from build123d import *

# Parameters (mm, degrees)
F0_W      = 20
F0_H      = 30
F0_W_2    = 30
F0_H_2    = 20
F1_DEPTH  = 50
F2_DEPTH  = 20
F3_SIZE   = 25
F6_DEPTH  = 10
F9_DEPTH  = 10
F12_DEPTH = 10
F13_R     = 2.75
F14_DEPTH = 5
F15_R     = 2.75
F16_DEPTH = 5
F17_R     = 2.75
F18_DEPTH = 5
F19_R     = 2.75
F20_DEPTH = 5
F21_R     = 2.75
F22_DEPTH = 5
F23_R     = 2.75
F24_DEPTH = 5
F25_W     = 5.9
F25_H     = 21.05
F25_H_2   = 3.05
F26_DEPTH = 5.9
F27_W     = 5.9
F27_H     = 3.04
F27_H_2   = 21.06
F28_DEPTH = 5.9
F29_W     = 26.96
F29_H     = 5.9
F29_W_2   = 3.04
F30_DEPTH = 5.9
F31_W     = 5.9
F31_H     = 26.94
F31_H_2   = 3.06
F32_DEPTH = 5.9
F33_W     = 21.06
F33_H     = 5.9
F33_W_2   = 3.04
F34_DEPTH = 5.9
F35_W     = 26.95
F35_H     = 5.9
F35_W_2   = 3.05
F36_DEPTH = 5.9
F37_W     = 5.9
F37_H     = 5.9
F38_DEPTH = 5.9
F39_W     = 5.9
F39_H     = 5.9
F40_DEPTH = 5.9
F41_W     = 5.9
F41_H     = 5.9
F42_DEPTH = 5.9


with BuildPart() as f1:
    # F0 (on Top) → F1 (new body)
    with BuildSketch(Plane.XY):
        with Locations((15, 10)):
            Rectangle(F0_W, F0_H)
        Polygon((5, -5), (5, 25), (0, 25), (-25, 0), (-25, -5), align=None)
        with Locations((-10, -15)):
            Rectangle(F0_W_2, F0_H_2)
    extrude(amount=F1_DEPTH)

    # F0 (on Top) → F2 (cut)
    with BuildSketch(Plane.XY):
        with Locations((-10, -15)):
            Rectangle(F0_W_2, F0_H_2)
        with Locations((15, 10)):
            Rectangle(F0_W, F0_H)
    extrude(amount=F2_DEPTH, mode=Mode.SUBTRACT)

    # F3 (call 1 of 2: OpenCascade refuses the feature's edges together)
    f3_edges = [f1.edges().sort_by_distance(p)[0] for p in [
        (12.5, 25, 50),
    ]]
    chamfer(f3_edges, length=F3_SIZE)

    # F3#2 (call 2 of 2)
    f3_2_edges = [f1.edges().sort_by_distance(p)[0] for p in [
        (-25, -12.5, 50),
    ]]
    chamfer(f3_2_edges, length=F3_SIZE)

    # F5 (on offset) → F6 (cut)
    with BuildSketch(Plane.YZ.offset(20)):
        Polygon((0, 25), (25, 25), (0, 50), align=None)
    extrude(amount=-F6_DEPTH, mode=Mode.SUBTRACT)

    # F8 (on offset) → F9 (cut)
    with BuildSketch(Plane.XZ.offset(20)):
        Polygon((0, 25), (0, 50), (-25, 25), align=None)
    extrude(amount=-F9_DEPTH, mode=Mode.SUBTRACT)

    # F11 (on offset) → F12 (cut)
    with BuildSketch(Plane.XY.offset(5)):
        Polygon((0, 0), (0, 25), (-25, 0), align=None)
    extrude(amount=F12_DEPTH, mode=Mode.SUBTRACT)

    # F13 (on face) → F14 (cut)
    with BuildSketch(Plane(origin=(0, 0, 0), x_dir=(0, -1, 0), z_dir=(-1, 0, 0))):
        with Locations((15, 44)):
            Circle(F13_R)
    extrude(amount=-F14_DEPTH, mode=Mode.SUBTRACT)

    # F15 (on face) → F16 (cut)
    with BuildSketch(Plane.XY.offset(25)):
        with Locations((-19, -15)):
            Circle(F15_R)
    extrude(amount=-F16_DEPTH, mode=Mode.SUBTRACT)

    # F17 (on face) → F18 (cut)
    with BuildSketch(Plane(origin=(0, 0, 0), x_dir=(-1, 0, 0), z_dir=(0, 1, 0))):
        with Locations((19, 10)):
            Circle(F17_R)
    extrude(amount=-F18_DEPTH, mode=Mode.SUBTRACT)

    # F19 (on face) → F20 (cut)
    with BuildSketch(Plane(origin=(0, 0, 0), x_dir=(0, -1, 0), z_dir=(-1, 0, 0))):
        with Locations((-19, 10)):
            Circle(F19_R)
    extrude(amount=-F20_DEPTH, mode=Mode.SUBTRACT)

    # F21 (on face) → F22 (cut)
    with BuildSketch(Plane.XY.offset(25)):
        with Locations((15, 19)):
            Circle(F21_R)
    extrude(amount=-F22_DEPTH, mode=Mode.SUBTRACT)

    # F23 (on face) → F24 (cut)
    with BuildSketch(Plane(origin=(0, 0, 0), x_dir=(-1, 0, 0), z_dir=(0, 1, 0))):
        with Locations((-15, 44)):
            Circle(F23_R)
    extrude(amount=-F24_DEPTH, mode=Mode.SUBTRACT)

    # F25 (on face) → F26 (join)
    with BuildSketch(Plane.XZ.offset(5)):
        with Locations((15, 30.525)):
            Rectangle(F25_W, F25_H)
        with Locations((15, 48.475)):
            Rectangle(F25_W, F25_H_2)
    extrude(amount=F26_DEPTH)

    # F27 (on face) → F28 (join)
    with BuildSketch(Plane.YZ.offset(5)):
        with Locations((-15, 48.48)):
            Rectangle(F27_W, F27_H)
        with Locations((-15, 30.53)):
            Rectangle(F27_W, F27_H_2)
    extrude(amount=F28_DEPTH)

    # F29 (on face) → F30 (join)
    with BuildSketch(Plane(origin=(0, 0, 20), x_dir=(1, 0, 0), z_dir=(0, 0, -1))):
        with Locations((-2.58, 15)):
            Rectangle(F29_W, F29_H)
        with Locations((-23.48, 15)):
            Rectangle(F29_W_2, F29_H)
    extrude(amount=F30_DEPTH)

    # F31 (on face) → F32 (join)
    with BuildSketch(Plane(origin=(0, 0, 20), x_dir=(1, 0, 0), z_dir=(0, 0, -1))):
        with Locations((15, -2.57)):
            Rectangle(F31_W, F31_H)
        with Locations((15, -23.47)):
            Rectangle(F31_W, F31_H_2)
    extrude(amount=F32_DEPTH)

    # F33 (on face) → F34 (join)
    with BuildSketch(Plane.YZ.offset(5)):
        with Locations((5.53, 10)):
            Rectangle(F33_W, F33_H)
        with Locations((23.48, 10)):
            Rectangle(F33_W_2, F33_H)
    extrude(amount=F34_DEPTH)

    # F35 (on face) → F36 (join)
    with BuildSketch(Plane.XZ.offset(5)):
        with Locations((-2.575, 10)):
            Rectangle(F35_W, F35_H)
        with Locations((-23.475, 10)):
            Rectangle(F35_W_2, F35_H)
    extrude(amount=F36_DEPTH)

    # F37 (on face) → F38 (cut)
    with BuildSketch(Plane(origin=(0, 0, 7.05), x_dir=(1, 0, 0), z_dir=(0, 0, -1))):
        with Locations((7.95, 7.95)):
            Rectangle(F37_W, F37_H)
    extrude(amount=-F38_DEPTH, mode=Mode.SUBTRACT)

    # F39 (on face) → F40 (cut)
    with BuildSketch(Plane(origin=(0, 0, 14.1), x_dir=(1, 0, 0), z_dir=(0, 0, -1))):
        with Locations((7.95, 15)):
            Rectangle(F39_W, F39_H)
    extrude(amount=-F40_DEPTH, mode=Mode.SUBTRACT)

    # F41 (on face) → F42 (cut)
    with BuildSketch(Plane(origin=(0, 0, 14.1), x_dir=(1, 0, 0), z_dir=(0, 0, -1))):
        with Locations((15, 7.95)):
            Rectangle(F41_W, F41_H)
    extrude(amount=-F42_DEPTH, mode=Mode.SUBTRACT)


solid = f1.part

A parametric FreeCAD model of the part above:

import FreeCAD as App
import Part
import Sketcher
Q = App.Units.Quantity


def edges_at(feature, points):
    """Names of the edges that pass closest to the given points."""
    edges = feature.Shape.Edges
    near = lambda p: min(range(len(edges)), key=lambda i: edges[i].distToShape(Part.Vertex(*p))[0])
    return sorted({f"Edge{near(p) + 1}" for p in points})


def add_polygon(sketch, points):
    """Adds a closed chain of lines whose ends are joined by coincident constraints."""
    first, n = sketch.GeometryCount, len(points)
    for a, b in zip(points, points[1:] + points[:1]):
        sketch.addGeometry(Part.LineSegment(App.Vector(*a, 0), App.Vector(*b, 0)), False)
    for i in range(n):
        sketch.addConstraint(Sketcher.Constraint("Coincident", first + i, 2, first + (i + 1) % n, 1))

doc = App.newDocument("Part")
body = doc.addObject("PartDesign::Body", "Body")

sketch1 = body.newObject("Sketcher::SketchObject", "Sketch")
sketch1.AttachmentSupport = (doc.getObject("XY_Plane"), [""])
sketch1.MapMode = "FlatFace"
add_polygon(sketch1, [(25, -5), (25, 25), (0, 25), (-25, 0), (-25, -25), (5, -25), (5, -5)])
sketch1.addConstraint([
    Sketcher.Constraint("Vertical", 0),
    Sketcher.Constraint("Horizontal", 1),
    Sketcher.Constraint("Vertical", 3),
    Sketcher.Constraint("Horizontal", 4),
    Sketcher.Constraint("Vertical", 5),
    Sketcher.Constraint("Horizontal", 6),
    Sketcher.Constraint("Symmetric", 0, 2, 3, 2, -1, 1),
    Sketcher.Constraint("PointOnObject", 1, 2, -2),
    Sketcher.Constraint("PointOnObject", 2, 2, -1),
    Sketcher.Constraint("Equal", 4, 0),
    Sketcher.Constraint("Equal", 1, 3),
    Sketcher.Constraint("DistanceX", 1, 2, 1, 1, Q("25 mm")),
    Sketcher.Constraint("DistanceX", 4, 1, 4, 2, Q("30 mm")),
])
pad1 = body.newObject("PartDesign::Pad", "Pad")
pad1.Profile = sketch1
pad1.Length = 50

sketch2 = body.newObject("Sketcher::SketchObject", "Sketch001")
sketch2.AttachmentSupport = (doc.getObject("XY_Plane"), [""])
sketch2.MapMode = "FlatFace"
add_polygon(sketch2, [(-25, -5), (-25, -25), (5, -25), (5, -5)])
add_polygon(sketch2, [(5, 25), (5, -5), (25, -5), (25, 25)])
sketch2.addConstraint([
    Sketcher.Constraint("Vertical", 0),
    Sketcher.Constraint("Horizontal", 1),
    Sketcher.Constraint("Vertical", 2),
    Sketcher.Constraint("Horizontal", 3),
    Sketcher.Constraint("Vertical", 4),
    Sketcher.Constraint("Horizontal", 5),
    Sketcher.Constraint("Vertical", 6),
    Sketcher.Constraint("Horizontal", 7),
    Sketcher.Constraint("Coincident", 4, 2, 2, 2),
    Sketcher.Constraint("Symmetric", 0, 2, 6, 2, -1, 1),
    Sketcher.Constraint("Equal", 7, 0),
    Sketcher.Constraint("Equal", 3, 4),
    Sketcher.Constraint("DistanceX", 1, 1, 1, 2, Q("30 mm")),
    Sketcher.Constraint("DistanceX", 5, 1, 5, 2, Q("20 mm")),
])
pocket1 = body.newObject("PartDesign::Pocket", "Pocket")
pocket1.Profile = sketch2
pocket1.Length = 20
pocket1.Reversed = True
doc.recompute()

chamfer = body.newObject("PartDesign::Chamfer", "Chamfer")
chamfer.Base = (pocket1, edges_at(pocket1, [(12.5, 25, 50)]))
chamfer.Size = 25
doc.recompute()

chamfer2 = body.newObject("PartDesign::Chamfer", "Chamfer001")
chamfer2.Base = (chamfer, edges_at(chamfer, [(-25, -12.5, 50)]))
chamfer2.Size = 25

sketch3 = body.newObject("Sketcher::SketchObject", "Sketch002")
sketch3.AttachmentSupport = (doc.getObject("YZ_Plane"), [""])
sketch3.MapMode = "FlatFace"
sketch3.AttachmentOffset = App.Placement(App.Vector(0, 0, 20), App.Rotation())
add_polygon(sketch3, [(0, 25), (25, 25), (0, 50)])
sketch3.addConstraint([
    Sketcher.Constraint("Horizontal", 0),
    Sketcher.Constraint("Vertical", 2),
    Sketcher.Constraint("PointOnObject", 1, 2, -2),
    Sketcher.Constraint("Equal", 0, 2),
    Sketcher.Constraint("DistanceX", 0, 1, 0, 2, Q("25 mm")),
    Sketcher.Constraint("DistanceY", -1, 1, 0, 2, Q("25 mm")),
])
pocket2 = body.newObject("PartDesign::Pocket", "Pocket001")
pocket2.Profile = sketch3
pocket2.Length = 10

sketch4 = body.newObject("Sketcher::SketchObject", "Sketch003")
sketch4.AttachmentSupport = (doc.getObject("XZ_Plane"), [""])
sketch4.MapMode = "FlatFace"
sketch4.AttachmentOffset = App.Placement(App.Vector(0, 0, 20), App.Rotation())
add_polygon(sketch4, [(0, 25), (0, 50), (-25, 25)])
sketch4.addConstraint([
    Sketcher.Constraint("Vertical", 0),
    Sketcher.Constraint("Horizontal", 2),
    Sketcher.Constraint("PointOnObject", 0, 2, -2),
    Sketcher.Constraint("Equal", 2, 0),
    Sketcher.Constraint("DistanceX", 2, 1, 2, 2, Q("25 mm")),
    Sketcher.Constraint("DistanceY", -1, 1, 0, 2, Q("50 mm")),
])
pocket3 = body.newObject("PartDesign::Pocket", "Pocket002")
pocket3.Profile = sketch4
pocket3.Length = 10

sketch5 = body.newObject("Sketcher::SketchObject", "Sketch004")
sketch5.AttachmentSupport = (doc.getObject("XY_Plane"), [""])
sketch5.MapMode = "FlatFace"
sketch5.AttachmentOffset = App.Placement(App.Vector(0, 0, 5), App.Rotation())
add_polygon(sketch5, [(0, 0), (0, 25), (-25, 0)])
sketch5.addConstraint([
    Sketcher.Constraint("Vertical", 0),
    Sketcher.Constraint("Horizontal", 2),
    Sketcher.Constraint("Coincident", 2, 2, -1, 1),
    Sketcher.Constraint("Equal", 2, 0),
    Sketcher.Constraint("DistanceX", 2, 1, 2, 2, Q("25 mm")),
])
pocket4 = body.newObject("PartDesign::Pocket", "Pocket003")
pocket4.Profile = sketch5
pocket4.Length = 10
pocket4.Reversed = True

sketch6 = body.newObject("Sketcher::SketchObject", "Sketch005")
sketch6.AttachmentSupport = (doc.getObject("YZ_Plane"), [""])
sketch6.MapMode = "FlatFace"
sketch6.addGeometry(Part.Circle(App.Vector(-15, 44, 0), App.Vector(0, 0, 1), 2.8), False)
sketch6.addConstraint([
    Sketcher.Constraint("Diameter", 0, Q("5.5 mm")),
    Sketcher.Constraint("DistanceX", 0, 3, -1, 1, Q("15 mm")),
    Sketcher.Constraint("DistanceY", -1, 1, 0, 3, Q("44 mm")),
])
pocket5 = body.newObject("PartDesign::Pocket", "Pocket004")
pocket5.Profile = sketch6
pocket5.Length = 5
pocket5.Reversed = True

sketch7 = body.newObject("Sketcher::SketchObject", "Sketch006")
sketch7.AttachmentSupport = (doc.getObject("XY_Plane"), [""])
sketch7.MapMode = "FlatFace"
sketch7.AttachmentOffset = App.Placement(App.Vector(0, 0, 25), App.Rotation())
sketch7.addGeometry(Part.Circle(App.Vector(-19, -15, 0), App.Vector(0, 0, 1), 2.8), False)
sketch7.addConstraint([
    Sketcher.Constraint("Diameter", 0, Q("5.5 mm")),
    Sketcher.Constraint("DistanceX", 0, 3, -1, 1, Q("19 mm")),
    Sketcher.Constraint("DistanceY", 0, 3, -1, 1, Q("15 mm")),
])
pocket6 = body.newObject("PartDesign::Pocket", "Pocket005")
pocket6.Profile = sketch7
pocket6.Length = 5

sketch8 = body.newObject("Sketcher::SketchObject", "Sketch007")
sketch8.AttachmentSupport = (doc.getObject("XZ_Plane"), [""])
sketch8.MapMode = "FlatFace"
sketch8.addGeometry(Part.Circle(App.Vector(-19, 10, 0), App.Vector(0, 0, 1), 2.8), False)
sketch8.addConstraint([
    Sketcher.Constraint("Diameter", 0, Q("5.5 mm")),
    Sketcher.Constraint("DistanceX", 0, 3, -1, 1, Q("19 mm")),
    Sketcher.Constraint("DistanceY", -1, 1, 0, 3, Q("10 mm")),
])
pocket7 = body.newObject("PartDesign::Pocket", "Pocket006")
pocket7.Profile = sketch8
pocket7.Length = 5
pocket7.Reversed = True

sketch9 = body.newObject("Sketcher::SketchObject", "Sketch008")
sketch9.AttachmentSupport = (doc.getObject("YZ_Plane"), [""])
sketch9.MapMode = "FlatFace"
sketch9.addGeometry(Part.Circle(App.Vector(19, 10, 0), App.Vector(0, 0, 1), 2.8), False)
sketch9.addConstraint([
    Sketcher.Constraint("Diameter", 0, Q("5.5 mm")),
    Sketcher.Constraint("DistanceX", -1, 1, 0, 3, Q("19 mm")),
    Sketcher.Constraint("DistanceY", -1, 1, 0, 3, Q("10 mm")),
])
pocket8 = body.newObject("PartDesign::Pocket", "Pocket007")
pocket8.Profile = sketch9
pocket8.Length = 5
pocket8.Reversed = True

sketch10 = body.newObject("Sketcher::SketchObject", "Sketch009")
sketch10.AttachmentSupport = (doc.getObject("XY_Plane"), [""])
sketch10.MapMode = "FlatFace"
sketch10.AttachmentOffset = App.Placement(App.Vector(0, 0, 25), App.Rotation())
sketch10.addGeometry(Part.Circle(App.Vector(15, 19, 0), App.Vector(0, 0, 1), 2.8), False)
sketch10.addConstraint([
    Sketcher.Constraint("Diameter", 0, Q("5.5 mm")),
    Sketcher.Constraint("DistanceX", -1, 1, 0, 3, Q("15 mm")),
    Sketcher.Constraint("DistanceY", -1, 1, 0, 3, Q("19 mm")),
])
pocket9 = body.newObject("PartDesign::Pocket", "Pocket008")
pocket9.Profile = sketch10
pocket9.Length = 5

sketch11 = body.newObject("Sketcher::SketchObject", "Sketch010")
sketch11.AttachmentSupport = (doc.getObject("XZ_Plane"), [""])
sketch11.MapMode = "FlatFace"
sketch11.addGeometry(Part.Circle(App.Vector(15, 44, 0), App.Vector(0, 0, 1), 2.8), False)
sketch11.addConstraint([
    Sketcher.Constraint("Diameter", 0, Q("5.5 mm")),
    Sketcher.Constraint("DistanceX", -1, 1, 0, 3, Q("15 mm")),
    Sketcher.Constraint("DistanceY", -1, 1, 0, 3, Q("44 mm")),
])
pocket10 = body.newObject("PartDesign::Pocket", "Pocket009")
pocket10.Profile = sketch11
pocket10.Length = 5
pocket10.Reversed = True

sketch12 = body.newObject("Sketcher::SketchObject", "Sketch011")
sketch12.AttachmentSupport = (doc.getObject("XZ_Plane"), [""])
sketch12.MapMode = "FlatFace"
sketch12.AttachmentOffset = App.Placement(App.Vector(0, 0, 5), App.Rotation())
add_polygon(sketch12, [(12.1, 41), (12.1, 20), (17.9, 20), (17.9, 41)])
add_polygon(sketch12, [(12.1, 50), (12.1, 47), (17.9, 47), (17.9, 50)])
sketch12.addConstraint([
    Sketcher.Constraint("Vertical", 0),
    Sketcher.Constraint("Horizontal", 1),
    Sketcher.Constraint("Vertical", 2),
    Sketcher.Constraint("Horizontal", 3),
    Sketcher.Constraint("Vertical", 4),
    Sketcher.Constraint("Horizontal", 5),
    Sketcher.Constraint("Vertical", 6),
    Sketcher.Constraint("Horizontal", 7),
    Sketcher.Constraint("Vertical", 3, 2, 4, 2),
    Sketcher.Constraint("Vertical", 2, 2, 5, 2),
    Sketcher.Constraint("DistanceX", 1, 1, 1, 2, Q("5.9 mm")),
    Sketcher.Constraint("DistanceY", -1, 1, 0, 2, Q("20 mm")),
    Sketcher.Constraint("DistanceY", -1, 1, 6, 2, Q("50 mm")),
    Sketcher.Constraint("DistanceY", 0, 2, 0, 1, Q("21.05 mm")),
    Sketcher.Constraint("DistanceY", 4, 2, 4, 1, Q("3.05 mm")),
    Sketcher.Constraint("DistanceX", -1, 1, 0, 2, Q("12.05 mm")),
])
pad2 = body.newObject("PartDesign::Pad", "Pad001")
pad2.Profile = sketch12
pad2.Length = 5.9

sketch13 = body.newObject("Sketcher::SketchObject", "Sketch012")
sketch13.AttachmentSupport = (doc.getObject("YZ_Plane"), [""])
sketch13.MapMode = "FlatFace"
sketch13.AttachmentOffset = App.Placement(App.Vector(0, 0, 5), App.Rotation())
add_polygon(sketch13, [(-17.9, 50), (-17.9, 47), (-12.1, 47), (-12.1, 50)])
add_polygon(sketch13, [(-17.9, 41.1), (-17.9, 20), (-12.1, 20), (-12.1, 41.1)])
sketch13.addConstraint([
    Sketcher.Constraint("Vertical", 0),
    Sketcher.Constraint("Horizontal", 1),
    Sketcher.Constraint("Vertical", 2),
    Sketcher.Constraint("Horizontal", 3),
    Sketcher.Constraint("Vertical", 4),
    Sketcher.Constraint("Horizontal", 5),
    Sketcher.Constraint("Vertical", 6),
    Sketcher.Constraint("Horizontal", 7),
    Sketcher.Constraint("Vertical", 3, 2, 4, 2),
    Sketcher.Constraint("Vertical", 2, 2, 5, 2),
    Sketcher.Constraint("DistanceX", 1, 1, 1, 2, Q("5.9 mm")),
    Sketcher.Constraint("DistanceY", -1, 1, 2, 2, Q("50 mm")),
    Sketcher.Constraint("DistanceY", -1, 1, 4, 2, Q("20 mm")),
    Sketcher.Constraint("DistanceY", 0, 2, 0, 1, Q("3.04 mm")),
    Sketcher.Constraint("DistanceY", 4, 2, 4, 1, Q("21.06 mm")),
    Sketcher.Constraint("DistanceX", 0, 2, -1, 1, Q("17.95 mm")),
])
pad3 = body.newObject("PartDesign::Pad", "Pad002")
pad3.Profile = sketch13
pad3.Length = 5.9

sketch14 = body.newObject("Sketcher::SketchObject", "Sketch013")
sketch14.AttachmentSupport = (doc.getObject("XY_Plane"), [""])
sketch14.MapMode = "FlatFace"
sketch14.AttachmentOffset = App.Placement(App.Vector(0, 0, 20), App.Rotation())
add_polygon(sketch14, [(-16.1, -17.9), (-16.1, -12.1), (10.9, -12.1), (10.9, -17.9)])
add_polygon(sketch14, [(-25, -17.9), (-25, -12.1), (-22, -12.1), (-22, -17.9)])
sketch14.addConstraint([
    Sketcher.Constraint("Vertical", 0),
    Sketcher.Constraint("Horizontal", 1),
    Sketcher.Constraint("Vertical", 2),
    Sketcher.Constraint("Horizontal", 3),
    Sketcher.Constraint("Vertical", 4),
    Sketcher.Constraint("Horizontal", 5),
    Sketcher.Constraint("Vertical", 6),
    Sketcher.Constraint("Horizontal", 7),
    Sketcher.Constraint("Horizontal", 1, 2, 4, 2),
    Sketcher.Constraint("Horizontal", 3, 2, 6, 2),
    Sketcher.Constraint("DistanceY", 0, 1, 0, 2, Q("5.9 mm")),
    Sketcher.Constraint("DistanceX", 4, 2, -1, 1, Q("25 mm")),
    Sketcher.Constraint("DistanceX", 1, 1, 1, 2, Q("26.96 mm")),
    Sketcher.Constraint("DistanceX", 5, 1, 5, 2, Q("3.04 mm")),
    Sketcher.Constraint("DistanceX", -1, 1, 1, 2, Q("10.9 mm")),
    Sketcher.Constraint("DistanceY", 0, 2, -1, 1, Q("12.05 mm")),
])
pad4 = body.newObject("PartDesign::Pad", "Pad003")
pad4.Profile = sketch14
pad4.Length = 5.9
pad4.Reversed = True

sketch15 = body.newObject("Sketcher::SketchObject", "Sketch014")
sketch15.AttachmentSupport = (doc.getObject("XY_Plane"), [""])
sketch15.MapMode = "FlatFace"
sketch15.AttachmentOffset = App.Placement(App.Vector(0, 0, 20), App.Rotation())
add_polygon(sketch15, [(12.1, -10.9), (12.1, 16), (17.9, 16), (17.9, -10.9)])
add_polygon(sketch15, [(12.1, 21.9), (12.1, 25), (17.9, 25), (17.9, 21.9)])
sketch15.addConstraint([
    Sketcher.Constraint("Vertical", 0),
    Sketcher.Constraint("Horizontal", 1),
    Sketcher.Constraint("Vertical", 2),
    Sketcher.Constraint("Horizontal", 3),
    Sketcher.Constraint("Vertical", 4),
    Sketcher.Constraint("Horizontal", 5),
    Sketcher.Constraint("Vertical", 6),
    Sketcher.Constraint("Horizontal", 7),
    Sketcher.Constraint("Vertical", 3, 2, 4, 2),
    Sketcher.Constraint("Vertical", 2, 2, 5, 2),
    Sketcher.Constraint("DistanceX", 1, 1, 1, 2, Q("5.9 mm")),
    Sketcher.Constraint("DistanceY", -1, 1, 4, 2, Q("25 mm")),
    Sketcher.Constraint("DistanceY", 0, 1, 0, 2, Q("26.94 mm")),
    Sketcher.Constraint("DistanceY", 4, 1, 4, 2, Q("3.06 mm")),
    Sketcher.Constraint("DistanceY", 2, 2, -1, 1, Q("10.9 mm")),
    Sketcher.Constraint("DistanceX", -1, 1, 0, 2, Q("12.05 mm")),
])
pad5 = body.newObject("PartDesign::Pad", "Pad004")
pad5.Profile = sketch15
pad5.Length = 5.9
pad5.Reversed = True

sketch16 = body.newObject("Sketcher::SketchObject", "Sketch015")
sketch16.AttachmentSupport = (doc.getObject("YZ_Plane"), [""])
sketch16.MapMode = "FlatFace"
sketch16.AttachmentOffset = App.Placement(App.Vector(0, 0, 5), App.Rotation())
add_polygon(sketch16, [(-5, 12.9), (-5, 7), (16.1, 7), (16.1, 12.9)])
add_polygon(sketch16, [(22, 12.9), (22, 7), (25, 7), (25, 12.9)])
sketch16.addConstraint([
    Sketcher.Constraint("Vertical", 0),
    Sketcher.Constraint("Horizontal", 1),
    Sketcher.Constraint("Vertical", 2),
    Sketcher.Constraint("Horizontal", 3),
    Sketcher.Constraint("Vertical", 4),
    Sketcher.Constraint("Horizontal", 5),
    Sketcher.Constraint("Vertical", 6),
    Sketcher.Constraint("Horizontal", 7),
    Sketcher.Constraint("Horizontal", 1, 2, 4, 2),
    Sketcher.Constraint("Horizontal", 3, 2, 6, 2),
    Sketcher.Constraint("DistanceY", 0, 2, 0, 1, Q("5.9 mm")),
    Sketcher.Constraint("DistanceX", 0, 2, -1, 1, Q("5 mm")),
    Sketcher.Constraint("DistanceX", -1, 1, 5, 2, Q("25 mm")),
    Sketcher.Constraint("DistanceX", 1, 1, 1, 2, Q("21.06 mm")),
    Sketcher.Constraint("DistanceX", 5, 1, 5, 2, Q("3.04 mm")),
    Sketcher.Constraint("DistanceY", -1, 1, 0, 2, Q("7.05 mm")),
])
pad6 = body.newObject("PartDesign::Pad", "Pad005")
pad6.Profile = sketch16
pad6.Length = 5.9

sketch17 = body.newObject("Sketcher::SketchObject", "Sketch016")
sketch17.AttachmentSupport = (doc.getObject("XZ_Plane"), [""])
sketch17.MapMode = "FlatFace"
sketch17.AttachmentOffset = App.Placement(App.Vector(0, 0, 5), App.Rotation())
add_polygon(sketch17, [(-16.1, 12.9), (-16.1, 7), (10.9, 7), (10.9, 12.9)])
add_polygon(sketch17, [(-25, 12.9), (-25, 7), (-21.9, 7), (-21.9, 12.9)])
sketch17.addConstraint([
    Sketcher.Constraint("Vertical", 0),
    Sketcher.Constraint("Horizontal", 1),
    Sketcher.Constraint("Vertical", 2),
    Sketcher.Constraint("Horizontal", 3),
    Sketcher.Constraint("Vertical", 4),
    Sketcher.Constraint("Horizontal", 5),
    Sketcher.Constraint("Vertical", 6),
    Sketcher.Constraint("Horizontal", 7),
    Sketcher.Constraint("Horizontal", 1, 2, 4, 2),
    Sketcher.Constraint("Horizontal", 3, 2, 6, 2),
    Sketcher.Constraint("DistanceY", 0, 2, 0, 1, Q("5.9 mm")),
    Sketcher.Constraint("DistanceX", 4, 2, -1, 1, Q("25 mm")),
    Sketcher.Constraint("DistanceX", 1, 1, 1, 2, Q("26.95 mm")),
    Sketcher.Constraint("DistanceX", 5, 1, 5, 2, Q("3.05 mm")),
    Sketcher.Constraint("DistanceX", -1, 1, 1, 2, Q("10.9 mm")),
    Sketcher.Constraint("DistanceY", -1, 1, 0, 2, Q("7.05 mm")),
])
pad7 = body.newObject("PartDesign::Pad", "Pad006")
pad7.Profile = sketch17
pad7.Length = 5.9

sketch18 = body.newObject("Sketcher::SketchObject", "Sketch017")
sketch18.AttachmentSupport = (doc.getObject("XY_Plane"), [""])
sketch18.MapMode = "FlatFace"
sketch18.AttachmentOffset = App.Placement(App.Vector(0, 0, 7.05), App.Rotation())
add_polygon(sketch18, [(5, -11), (5, -5), (11, -5), (11, -11)])
sketch18.addConstraint([
    Sketcher.Constraint("Vertical", 0),
    Sketcher.Constraint("Horizontal", 1),
    Sketcher.Constraint("Vertical", 2),
    Sketcher.Constraint("Horizontal", 3),
    Sketcher.Constraint("Equal", 3, 0),
    Sketcher.Constraint("DistanceX", 1, 1, 1, 2, Q("5.9 mm")),
    Sketcher.Constraint("DistanceX", -1, 1, 0, 2, Q("5 mm")),
    Sketcher.Constraint("DistanceY", 0, 2, -1, 1, Q("5 mm")),
])
pocket11 = body.newObject("PartDesign::Pocket", "Pocket010")
pocket11.Profile = sketch18
pocket11.Length = 5.9
pocket11.Reversed = True

sketch19 = body.newObject("Sketcher::SketchObject", "Sketch018")
sketch19.AttachmentSupport = (doc.getObject("XY_Plane"), [""])
sketch19.MapMode = "FlatFace"
sketch19.AttachmentOffset = App.Placement(App.Vector(0, 0, 14.1), App.Rotation())
add_polygon(sketch19, [(5, -18), (5, -12), (11, -12), (11, -18)])
sketch19.addConstraint([
    Sketcher.Constraint("Vertical", 0),
    Sketcher.Constraint("Horizontal", 1),
    Sketcher.Constraint("Vertical", 2),
    Sketcher.Constraint("Horizontal", 3),
    Sketcher.Constraint("Equal", 3, 0),
    Sketcher.Constraint("DistanceX", 1, 1, 1, 2, Q("5.9 mm")),
    Sketcher.Constraint("DistanceX", -1, 1, 0, 2, Q("5 mm")),
    Sketcher.Constraint("DistanceY", 0, 2, -1, 1, Q("12.05 mm")),
])
pocket12 = body.newObject("PartDesign::Pocket", "Pocket011")
pocket12.Profile = sketch19
pocket12.Length = 5.9
pocket12.Reversed = True

sketch20 = body.newObject("Sketcher::SketchObject", "Sketch019")
sketch20.AttachmentSupport = (doc.getObject("XY_Plane"), [""])
sketch20.MapMode = "FlatFace"
sketch20.AttachmentOffset = App.Placement(App.Vector(0, 0, 14.1), App.Rotation())
add_polygon(sketch20, [(12, -11), (12, -5), (18, -5), (18, -11)])
sketch20.addConstraint([
    Sketcher.Constraint("Vertical", 0),
    Sketcher.Constraint("Horizontal", 1),
    Sketcher.Constraint("Vertical", 2),
    Sketcher.Constraint("Horizontal", 3),
    Sketcher.Constraint("Equal", 3, 0),
    Sketcher.Constraint("DistanceX", 1, 1, 1, 2, Q("5.9 mm")),
    Sketcher.Constraint("DistanceY", 0, 2, -1, 1, Q("5 mm")),
    Sketcher.Constraint("DistanceX", -1, 1, 0, 2, Q("12.05 mm")),
])
pocket13 = body.newObject("PartDesign::Pocket", "Pocket012")
pocket13.Profile = sketch20
pocket13.Length = 5.9
pocket13.Reversed = True

doc.recompute()
